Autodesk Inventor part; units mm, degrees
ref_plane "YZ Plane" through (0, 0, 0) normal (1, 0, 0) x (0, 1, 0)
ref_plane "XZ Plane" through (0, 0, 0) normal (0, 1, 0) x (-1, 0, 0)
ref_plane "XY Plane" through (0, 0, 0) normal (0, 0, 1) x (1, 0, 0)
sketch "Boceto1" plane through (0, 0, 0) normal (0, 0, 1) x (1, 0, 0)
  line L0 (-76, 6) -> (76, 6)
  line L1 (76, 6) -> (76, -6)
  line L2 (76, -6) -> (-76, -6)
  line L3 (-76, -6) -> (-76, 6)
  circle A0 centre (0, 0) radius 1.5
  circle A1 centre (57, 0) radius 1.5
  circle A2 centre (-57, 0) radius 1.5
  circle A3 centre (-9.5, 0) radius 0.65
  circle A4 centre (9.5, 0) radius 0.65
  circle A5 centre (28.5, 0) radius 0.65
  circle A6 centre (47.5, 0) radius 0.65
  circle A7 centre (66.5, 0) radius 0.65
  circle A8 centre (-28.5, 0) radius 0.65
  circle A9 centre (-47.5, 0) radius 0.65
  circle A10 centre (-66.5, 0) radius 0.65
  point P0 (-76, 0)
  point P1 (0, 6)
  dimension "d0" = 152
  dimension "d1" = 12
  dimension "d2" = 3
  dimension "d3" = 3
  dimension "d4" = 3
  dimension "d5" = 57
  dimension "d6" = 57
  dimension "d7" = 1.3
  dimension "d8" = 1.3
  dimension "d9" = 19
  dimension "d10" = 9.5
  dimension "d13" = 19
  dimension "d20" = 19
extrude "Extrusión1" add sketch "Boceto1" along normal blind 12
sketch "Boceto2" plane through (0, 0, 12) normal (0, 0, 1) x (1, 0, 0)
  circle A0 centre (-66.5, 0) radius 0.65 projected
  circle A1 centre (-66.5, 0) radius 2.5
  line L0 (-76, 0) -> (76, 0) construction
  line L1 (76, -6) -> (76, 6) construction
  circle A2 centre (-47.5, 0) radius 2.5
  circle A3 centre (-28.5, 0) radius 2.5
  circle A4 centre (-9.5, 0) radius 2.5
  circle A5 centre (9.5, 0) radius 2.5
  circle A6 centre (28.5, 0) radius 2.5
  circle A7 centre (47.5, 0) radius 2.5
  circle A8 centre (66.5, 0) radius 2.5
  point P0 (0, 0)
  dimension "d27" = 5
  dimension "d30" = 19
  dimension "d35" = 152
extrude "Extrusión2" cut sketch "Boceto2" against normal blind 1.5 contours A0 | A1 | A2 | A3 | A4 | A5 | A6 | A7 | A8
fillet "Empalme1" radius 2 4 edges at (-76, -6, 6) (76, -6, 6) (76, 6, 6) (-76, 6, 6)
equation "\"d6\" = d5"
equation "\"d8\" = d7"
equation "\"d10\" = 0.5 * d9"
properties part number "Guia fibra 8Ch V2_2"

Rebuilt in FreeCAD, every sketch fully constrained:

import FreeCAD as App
import Part
import Sketcher
Q = App.Units.Quantity


def edges_at(feature, points):
    """Names of the edges that pass closest to the given points."""
    edges = feature.Shape.Edges
    near = lambda p: min(range(len(edges)), key=lambda i: edges[i].distToShape(Part.Vertex(*p))[0])
    return sorted({f"Edge{near(p) + 1}" for p in points})

doc = App.newDocument("Part")
params = doc.addObject("Spreadsheet::Sheet", "Params")
for row, (alias, value) in enumerate([
    ("sketch1_diameter", "3 mm"),
    ("sketch1_diameter2", "1.3 mm"),
    ("sketch1_width", "152 mm"),
    ("sketch1_height", "12 mm"),
    ("pad1_length", "12 mm"),
    ("sketch2_diameter", "5 mm"),
    ("pocket1_length", "1.5 mm"),
    ("fillet_radius", "2 mm"),
], start=1):
    params.set(f"A{row}", alias)
    params.set(f"B{row}", "=" + value)
    params.setAlias(f"B{row}", alias)

body = doc.addObject("PartDesign::Body", "Body")

# Sketch on XY plane
sketch1 = body.newObject("Sketcher::SketchObject", "Sketch")
sketch1.AttachmentSupport = (doc.getObject("XY_Plane"), [""])
sketch1.MapMode = "FlatFace"
sketch1.addGeometry([
    Part.LineSegment(App.Vector(76, 6, 0), App.Vector(-76, 6, 0)),  # 0
    Part.LineSegment(App.Vector(-76, 6, 0), App.Vector(-76, -6, 0)),  # 1
    Part.LineSegment(App.Vector(-76, -6, 0), App.Vector(76, -6, 0)),  # 2
    Part.LineSegment(App.Vector(76, -6, 0), App.Vector(76, 6, 0)),  # 3
    Part.Circle(App.Vector(-66.5, 0, 0), App.Vector(0, 0, 1), 0.65),  # 4
    Part.Circle(App.Vector(-57, 0, 0), App.Vector(0, 0, 1), 1.5),  # 5
    Part.Circle(App.Vector(-47.5, 0, 0), App.Vector(0, 0, 1), 0.65),  # 6
    Part.Circle(App.Vector(-28.5, 0, 0), App.Vector(0, 0, 1), 0.65),  # 7
    Part.Circle(App.Vector(-9.5, 0, 0), App.Vector(0, 0, 1), 0.65),  # 8
    Part.Circle(App.Vector(0, 0, 0), App.Vector(0, 0, 1), 1.5),  # 9
    Part.Circle(App.Vector(9.5, 0, 0), App.Vector(0, 0, 1), 0.65),  # 10
    Part.Circle(App.Vector(28.5, 0, 0), App.Vector(0, 0, 1), 0.65),  # 11
    Part.Circle(App.Vector(47.5, 0, 0), App.Vector(0, 0, 1), 0.65),  # 12
    Part.Circle(App.Vector(57, 0, 0), App.Vector(0, 0, 1), 1.5),  # 13
    Part.Circle(App.Vector(66.5, 0, 0), App.Vector(0, 0, 1), 0.65),  # 14
], False)
sketch1.addConstraint([
    Sketcher.Constraint("Coincident", 0, 2, 1, 1),
    Sketcher.Constraint("Coincident", 1, 2, 2, 1),
    Sketcher.Constraint("Coincident", 2, 2, 3, 1),
    Sketcher.Constraint("Coincident", 3, 2, 0, 1),
    Sketcher.Constraint("Horizontal", 0),
    Sketcher.Constraint("Vertical", 1),
    Sketcher.Constraint("Horizontal", 2),
    Sketcher.Constraint("Vertical", 3),
    Sketcher.Constraint("Coincident", 9, 3, -1, 1),
    Sketcher.Constraint("Equal", 4, 6),
    Sketcher.Constraint("Equal", 6, 7),
    Sketcher.Constraint("Equal", 7, 8),
    Sketcher.Constraint("Equal", 5, 9),
    Sketcher.Constraint("Equal", 8, 10),
    Sketcher.Constraint("Equal", 10, 11),
    Sketcher.Constraint("Equal", 11, 12),
    Sketcher.Constraint("Equal", 9, 13),
    Sketcher.Constraint("Equal", 12, 14),
    Sketcher.Constraint("Symmetric", 8, 3, 10, 3, -1, 1),
    Sketcher.Constraint("Symmetric", 7, 3, 11, 3, -1, 1),
    Sketcher.Constraint("Symmetric", 6, 3, 12, 3, -1, 1),
    Sketcher.Constraint("Symmetric", 5, 3, 13, 3, -1, 1),
    Sketcher.Constraint("Symmetric", 4, 3, 14, 3, -1, 1),
    Sketcher.Constraint("Symmetric", 0, 2, 2, 2, -1, 1),
    Sketcher.Constraint("PointOnObject", 4, 3, -1),
    Sketcher.Constraint("PointOnObject", 5, 3, -1),
    Sketcher.Constraint("PointOnObject", 6, 3, -1),
    Sketcher.Constraint("PointOnObject", 7, 3, -1),
    Sketcher.Constraint("PointOnObject", 8, 3, -1),
    Sketcher.Constraint("Diameter", 5, Q("3 mm")),
    Sketcher.Constraint("Diameter", 4, Q("1.3 mm")),
    Sketcher.Constraint("DistanceX", 0, 2, 0, 1, Q("152 mm")),
    Sketcher.Constraint("DistanceY", 1, 2, 1, 1, Q("12 mm")),
    Sketcher.Constraint("DistanceX", 5, 3, -1, 1, Q("57 mm")),
    Sketcher.Constraint("DistanceX", 4, 3, 6, 3, Q("19 mm")),
    Sketcher.Constraint("DistanceX", 6, 3, 7, 3, Q("19 mm")),
    Sketcher.Constraint("DistanceX", 7, 3, 8, 3, Q("19 mm")),
    Sketcher.Constraint("DistanceX", 8, 3, 10, 3, Q("19 mm")),
])
sketch1.setExpression("Constraints[29]", "Params.sketch1_diameter")
sketch1.setExpression("Constraints[30]", "Params.sketch1_diameter2")
sketch1.setExpression("Constraints[31]", "Params.sketch1_width")
sketch1.setExpression("Constraints[32]", "Params.sketch1_height")
pad1 = body.newObject("PartDesign::Pad", "Pad")
pad1.Profile = sketch1
pad1.setExpression("Length", "Params.pad1_length")

# Sketch on XY plane
sketch2 = body.newObject("Sketcher::SketchObject", "Sketch001")
sketch2.AttachmentSupport = (doc.getObject("XY_Plane"), [""])
sketch2.MapMode = "FlatFace"
sketch2.AttachmentOffset = App.Placement(App.Vector(0, 0, 12), App.Rotation())
sketch2.addGeometry([
    Part.Circle(App.Vector(-66.5, 0, 0), App.Vector(0, 0, 1), 2.5),  # 0
    Part.Circle(App.Vector(-47.5, 0, 0), App.Vector(0, 0, 1), 2.5),  # 1
    Part.Circle(App.Vector(-28.5, 0, 0), App.Vector(0, 0, 1), 2.5),  # 2
    Part.Circle(App.Vector(-9.5, 0, 0), App.Vector(0, 0, 1), 2.5),  # 3
    Part.Circle(App.Vector(9.5, 0, 0), App.Vector(0, 0, 1), 2.5),  # 4
    Part.Circle(App.Vector(28.5, 0, 0), App.Vector(0, 0, 1), 2.5),  # 5
    Part.Circle(App.Vector(47.5, 0, 0), App.Vector(0, 0, 1), 2.5),  # 6
    Part.Circle(App.Vector(66.5, 0, 0), App.Vector(0, 0, 1), 2.5),  # 7
], False)
sketch2.addConstraint([
    Sketcher.Constraint("Equal", 0, 1),
    Sketcher.Constraint("Equal", 1, 2),
    Sketcher.Constraint("Equal", 2, 3),
    Sketcher.Constraint("Equal", 3, 4),
    Sketcher.Constraint("Equal", 4, 5),
    Sketcher.Constraint("Equal", 5, 6),
    Sketcher.Constraint("Equal", 6, 7),
    Sketcher.Constraint("Symmetric", 3, 3, 4, 3, -1, 1),
    Sketcher.Constraint("Symmetric", 2, 3, 5, 3, -1, 1),
    Sketcher.Constraint("Symmetric", 1, 3, 6, 3, -1, 1),
    Sketcher.Constraint("Symmetric", 0, 3, 7, 3, -1, 1),
    Sketcher.Constraint("PointOnObject", 0, 3, -1),
    Sketcher.Constraint("PointOnObject", 1, 3, -1),
    Sketcher.Constraint("PointOnObject", 2, 3, -1),
    Sketcher.Constraint("PointOnObject", 3, 3, -1),
    Sketcher.Constraint("Diameter", 0, Q("5 mm")),
    Sketcher.Constraint("DistanceX", 0, 3, 1, 3, Q("19 mm")),
    Sketcher.Constraint("DistanceX", 1, 3, 2, 3, Q("19 mm")),
    Sketcher.Constraint("DistanceX", 2, 3, 3, 3, Q("19 mm")),
    Sketcher.Constraint("DistanceX", 3, 3, 4, 3, Q("19 mm")),
])
sketch2.setExpression("Constraints[15]", "Params.sketch2_diameter")
pocket1 = body.newObject("PartDesign::Pocket", "Pocket")
pocket1.Profile = sketch2
pocket1.setExpression("Length", "Params.pocket1_length")
doc.recompute()

fillet = body.newObject("PartDesign::Fillet", "Fillet")
fillet.Base = (pocket1, edges_at(pocket1, [
    (-76, -6, 6),
    (76, -6, 6),
    (76, 6, 6),
    (-76, 6, 6),
]))
fillet.setExpression("Radius", "Params.fillet_radius")

doc.recompute()
